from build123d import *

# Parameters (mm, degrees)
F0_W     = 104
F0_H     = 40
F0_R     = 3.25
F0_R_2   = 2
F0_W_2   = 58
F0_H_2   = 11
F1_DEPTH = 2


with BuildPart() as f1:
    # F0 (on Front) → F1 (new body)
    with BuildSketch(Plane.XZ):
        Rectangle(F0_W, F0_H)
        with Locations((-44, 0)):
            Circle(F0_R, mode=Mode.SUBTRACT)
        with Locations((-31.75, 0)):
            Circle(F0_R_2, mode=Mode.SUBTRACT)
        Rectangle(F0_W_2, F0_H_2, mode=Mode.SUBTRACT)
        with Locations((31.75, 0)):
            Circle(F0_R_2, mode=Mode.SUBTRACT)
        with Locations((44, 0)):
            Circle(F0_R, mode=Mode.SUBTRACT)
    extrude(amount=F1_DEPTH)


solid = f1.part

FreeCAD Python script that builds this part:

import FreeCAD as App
import Part
import Sketcher

V = App.Vector
Q = App.Units.Quantity


def add_polygon(sketch, points):
    """Adds a closed chain of lines whose ends are joined by coincident constraints."""
    first, n = sketch.GeometryCount, len(points)
    for a, b in zip(points, points[1:] + points[:1]):
        sketch.addGeometry(Part.LineSegment(App.Vector(*a, 0), App.Vector(*b, 0)), False)
    for i in range(n):
        sketch.addConstraint(Sketcher.Constraint("Coincident", first + i, 2, first + (i + 1) % n, 1))

doc = App.newDocument("Part")
body = doc.addObject("PartDesign::Body", "Body")

sketch1 = body.newObject("Sketcher::SketchObject", "Sketch")
sketch1.AttachmentSupport = (doc.getObject("XZ_Plane"), [""])
sketch1.MapMode = "FlatFace"
add_polygon(sketch1, [(-52, 20), (-52, -20), (52, -20), (52, 20)])
sketch1.addGeometry(Part.Circle(V(-44, 0, 0), V(0, 0, 1), 3.2), False)
sketch1.addGeometry(Part.Circle(V(-31.8, 0, 0), V(0, 0, 1), 2), False)
add_polygon(sketch1, [(29, -5.5), (-29, -5.5), (-29, 5.5), (29, 5.5)])
sketch1.addGeometry(Part.Circle(V(31.8, 0, 0), V(0, 0, 1), 2), False)
sketch1.addGeometry(Part.Circle(V(44, 0, 0), V(0, 0, 1), 3.2), False)
sketch1.addConstraint(Sketcher.Constraint("Vertical", 0))
sketch1.addConstraint(Sketcher.Constraint("Horizontal", 1))
sketch1.addConstraint(Sketcher.Constraint("Vertical", 2))
sketch1.addConstraint(Sketcher.Constraint("Horizontal", 3))
sketch1.addConstraint(Sketcher.Constraint("Horizontal", 6))
sketch1.addConstraint(Sketcher.Constraint("Vertical", 7))
sketch1.addConstraint(Sketcher.Constraint("Horizontal", 8))
sketch1.addConstraint(Sketcher.Constraint("Vertical", 9))
sketch1.addConstraint(Sketcher.Constraint("Equal", 5, 10))
sketch1.addConstraint(Sketcher.Constraint("Equal", 4, 11))
sketch1.addConstraint(Sketcher.Constraint("Symmetric", 5, 3, 10, 3, -1, 1))
sketch1.addConstraint(Sketcher.Constraint("Symmetric", 4, 3, 11, 3, -1, 1))
sketch1.addConstraint(Sketcher.Constraint("Symmetric", 0, 2, 2, 2, -1, 1))
sketch1.addConstraint(Sketcher.Constraint("Symmetric", 6, 2, 8, 2, -1, 1))
sketch1.addConstraint(Sketcher.Constraint("PointOnObject", 4, 3, -1))
sketch1.addConstraint(Sketcher.Constraint("PointOnObject", 5, 3, -1))
sketch1.addConstraint(Sketcher.Constraint("Diameter", 5, Q("4 mm")))
sketch1.addConstraint(Sketcher.Constraint("Diameter", 4, Q("6.5 mm")))
sketch1.addConstraint(Sketcher.Constraint("DistanceX", 1, 1, 1, 2, Q("104 mm")))
sketch1.addConstraint(Sketcher.Constraint("DistanceX", 6, 2, 6, 1, Q("58 mm")))
sketch1.addConstraint(Sketcher.Constraint("DistanceY", 0, 2, 0, 1, Q("40 mm")))
sketch1.addConstraint(Sketcher.Constraint("DistanceY", 7, 1, 7, 2, Q("11 mm")))
sketch1.addConstraint(Sketcher.Constraint("DistanceX", 4, 3, -1, 1, Q("44 mm")))
sketch1.addConstraint(Sketcher.Constraint("DistanceX", 5, 3, 10, 3, Q("63.5 mm")))
pad1 = body.newObject("PartDesign::Pad", "Pad")
pad1.Profile = sketch1
pad1.Length = 2

doc.recompute()
